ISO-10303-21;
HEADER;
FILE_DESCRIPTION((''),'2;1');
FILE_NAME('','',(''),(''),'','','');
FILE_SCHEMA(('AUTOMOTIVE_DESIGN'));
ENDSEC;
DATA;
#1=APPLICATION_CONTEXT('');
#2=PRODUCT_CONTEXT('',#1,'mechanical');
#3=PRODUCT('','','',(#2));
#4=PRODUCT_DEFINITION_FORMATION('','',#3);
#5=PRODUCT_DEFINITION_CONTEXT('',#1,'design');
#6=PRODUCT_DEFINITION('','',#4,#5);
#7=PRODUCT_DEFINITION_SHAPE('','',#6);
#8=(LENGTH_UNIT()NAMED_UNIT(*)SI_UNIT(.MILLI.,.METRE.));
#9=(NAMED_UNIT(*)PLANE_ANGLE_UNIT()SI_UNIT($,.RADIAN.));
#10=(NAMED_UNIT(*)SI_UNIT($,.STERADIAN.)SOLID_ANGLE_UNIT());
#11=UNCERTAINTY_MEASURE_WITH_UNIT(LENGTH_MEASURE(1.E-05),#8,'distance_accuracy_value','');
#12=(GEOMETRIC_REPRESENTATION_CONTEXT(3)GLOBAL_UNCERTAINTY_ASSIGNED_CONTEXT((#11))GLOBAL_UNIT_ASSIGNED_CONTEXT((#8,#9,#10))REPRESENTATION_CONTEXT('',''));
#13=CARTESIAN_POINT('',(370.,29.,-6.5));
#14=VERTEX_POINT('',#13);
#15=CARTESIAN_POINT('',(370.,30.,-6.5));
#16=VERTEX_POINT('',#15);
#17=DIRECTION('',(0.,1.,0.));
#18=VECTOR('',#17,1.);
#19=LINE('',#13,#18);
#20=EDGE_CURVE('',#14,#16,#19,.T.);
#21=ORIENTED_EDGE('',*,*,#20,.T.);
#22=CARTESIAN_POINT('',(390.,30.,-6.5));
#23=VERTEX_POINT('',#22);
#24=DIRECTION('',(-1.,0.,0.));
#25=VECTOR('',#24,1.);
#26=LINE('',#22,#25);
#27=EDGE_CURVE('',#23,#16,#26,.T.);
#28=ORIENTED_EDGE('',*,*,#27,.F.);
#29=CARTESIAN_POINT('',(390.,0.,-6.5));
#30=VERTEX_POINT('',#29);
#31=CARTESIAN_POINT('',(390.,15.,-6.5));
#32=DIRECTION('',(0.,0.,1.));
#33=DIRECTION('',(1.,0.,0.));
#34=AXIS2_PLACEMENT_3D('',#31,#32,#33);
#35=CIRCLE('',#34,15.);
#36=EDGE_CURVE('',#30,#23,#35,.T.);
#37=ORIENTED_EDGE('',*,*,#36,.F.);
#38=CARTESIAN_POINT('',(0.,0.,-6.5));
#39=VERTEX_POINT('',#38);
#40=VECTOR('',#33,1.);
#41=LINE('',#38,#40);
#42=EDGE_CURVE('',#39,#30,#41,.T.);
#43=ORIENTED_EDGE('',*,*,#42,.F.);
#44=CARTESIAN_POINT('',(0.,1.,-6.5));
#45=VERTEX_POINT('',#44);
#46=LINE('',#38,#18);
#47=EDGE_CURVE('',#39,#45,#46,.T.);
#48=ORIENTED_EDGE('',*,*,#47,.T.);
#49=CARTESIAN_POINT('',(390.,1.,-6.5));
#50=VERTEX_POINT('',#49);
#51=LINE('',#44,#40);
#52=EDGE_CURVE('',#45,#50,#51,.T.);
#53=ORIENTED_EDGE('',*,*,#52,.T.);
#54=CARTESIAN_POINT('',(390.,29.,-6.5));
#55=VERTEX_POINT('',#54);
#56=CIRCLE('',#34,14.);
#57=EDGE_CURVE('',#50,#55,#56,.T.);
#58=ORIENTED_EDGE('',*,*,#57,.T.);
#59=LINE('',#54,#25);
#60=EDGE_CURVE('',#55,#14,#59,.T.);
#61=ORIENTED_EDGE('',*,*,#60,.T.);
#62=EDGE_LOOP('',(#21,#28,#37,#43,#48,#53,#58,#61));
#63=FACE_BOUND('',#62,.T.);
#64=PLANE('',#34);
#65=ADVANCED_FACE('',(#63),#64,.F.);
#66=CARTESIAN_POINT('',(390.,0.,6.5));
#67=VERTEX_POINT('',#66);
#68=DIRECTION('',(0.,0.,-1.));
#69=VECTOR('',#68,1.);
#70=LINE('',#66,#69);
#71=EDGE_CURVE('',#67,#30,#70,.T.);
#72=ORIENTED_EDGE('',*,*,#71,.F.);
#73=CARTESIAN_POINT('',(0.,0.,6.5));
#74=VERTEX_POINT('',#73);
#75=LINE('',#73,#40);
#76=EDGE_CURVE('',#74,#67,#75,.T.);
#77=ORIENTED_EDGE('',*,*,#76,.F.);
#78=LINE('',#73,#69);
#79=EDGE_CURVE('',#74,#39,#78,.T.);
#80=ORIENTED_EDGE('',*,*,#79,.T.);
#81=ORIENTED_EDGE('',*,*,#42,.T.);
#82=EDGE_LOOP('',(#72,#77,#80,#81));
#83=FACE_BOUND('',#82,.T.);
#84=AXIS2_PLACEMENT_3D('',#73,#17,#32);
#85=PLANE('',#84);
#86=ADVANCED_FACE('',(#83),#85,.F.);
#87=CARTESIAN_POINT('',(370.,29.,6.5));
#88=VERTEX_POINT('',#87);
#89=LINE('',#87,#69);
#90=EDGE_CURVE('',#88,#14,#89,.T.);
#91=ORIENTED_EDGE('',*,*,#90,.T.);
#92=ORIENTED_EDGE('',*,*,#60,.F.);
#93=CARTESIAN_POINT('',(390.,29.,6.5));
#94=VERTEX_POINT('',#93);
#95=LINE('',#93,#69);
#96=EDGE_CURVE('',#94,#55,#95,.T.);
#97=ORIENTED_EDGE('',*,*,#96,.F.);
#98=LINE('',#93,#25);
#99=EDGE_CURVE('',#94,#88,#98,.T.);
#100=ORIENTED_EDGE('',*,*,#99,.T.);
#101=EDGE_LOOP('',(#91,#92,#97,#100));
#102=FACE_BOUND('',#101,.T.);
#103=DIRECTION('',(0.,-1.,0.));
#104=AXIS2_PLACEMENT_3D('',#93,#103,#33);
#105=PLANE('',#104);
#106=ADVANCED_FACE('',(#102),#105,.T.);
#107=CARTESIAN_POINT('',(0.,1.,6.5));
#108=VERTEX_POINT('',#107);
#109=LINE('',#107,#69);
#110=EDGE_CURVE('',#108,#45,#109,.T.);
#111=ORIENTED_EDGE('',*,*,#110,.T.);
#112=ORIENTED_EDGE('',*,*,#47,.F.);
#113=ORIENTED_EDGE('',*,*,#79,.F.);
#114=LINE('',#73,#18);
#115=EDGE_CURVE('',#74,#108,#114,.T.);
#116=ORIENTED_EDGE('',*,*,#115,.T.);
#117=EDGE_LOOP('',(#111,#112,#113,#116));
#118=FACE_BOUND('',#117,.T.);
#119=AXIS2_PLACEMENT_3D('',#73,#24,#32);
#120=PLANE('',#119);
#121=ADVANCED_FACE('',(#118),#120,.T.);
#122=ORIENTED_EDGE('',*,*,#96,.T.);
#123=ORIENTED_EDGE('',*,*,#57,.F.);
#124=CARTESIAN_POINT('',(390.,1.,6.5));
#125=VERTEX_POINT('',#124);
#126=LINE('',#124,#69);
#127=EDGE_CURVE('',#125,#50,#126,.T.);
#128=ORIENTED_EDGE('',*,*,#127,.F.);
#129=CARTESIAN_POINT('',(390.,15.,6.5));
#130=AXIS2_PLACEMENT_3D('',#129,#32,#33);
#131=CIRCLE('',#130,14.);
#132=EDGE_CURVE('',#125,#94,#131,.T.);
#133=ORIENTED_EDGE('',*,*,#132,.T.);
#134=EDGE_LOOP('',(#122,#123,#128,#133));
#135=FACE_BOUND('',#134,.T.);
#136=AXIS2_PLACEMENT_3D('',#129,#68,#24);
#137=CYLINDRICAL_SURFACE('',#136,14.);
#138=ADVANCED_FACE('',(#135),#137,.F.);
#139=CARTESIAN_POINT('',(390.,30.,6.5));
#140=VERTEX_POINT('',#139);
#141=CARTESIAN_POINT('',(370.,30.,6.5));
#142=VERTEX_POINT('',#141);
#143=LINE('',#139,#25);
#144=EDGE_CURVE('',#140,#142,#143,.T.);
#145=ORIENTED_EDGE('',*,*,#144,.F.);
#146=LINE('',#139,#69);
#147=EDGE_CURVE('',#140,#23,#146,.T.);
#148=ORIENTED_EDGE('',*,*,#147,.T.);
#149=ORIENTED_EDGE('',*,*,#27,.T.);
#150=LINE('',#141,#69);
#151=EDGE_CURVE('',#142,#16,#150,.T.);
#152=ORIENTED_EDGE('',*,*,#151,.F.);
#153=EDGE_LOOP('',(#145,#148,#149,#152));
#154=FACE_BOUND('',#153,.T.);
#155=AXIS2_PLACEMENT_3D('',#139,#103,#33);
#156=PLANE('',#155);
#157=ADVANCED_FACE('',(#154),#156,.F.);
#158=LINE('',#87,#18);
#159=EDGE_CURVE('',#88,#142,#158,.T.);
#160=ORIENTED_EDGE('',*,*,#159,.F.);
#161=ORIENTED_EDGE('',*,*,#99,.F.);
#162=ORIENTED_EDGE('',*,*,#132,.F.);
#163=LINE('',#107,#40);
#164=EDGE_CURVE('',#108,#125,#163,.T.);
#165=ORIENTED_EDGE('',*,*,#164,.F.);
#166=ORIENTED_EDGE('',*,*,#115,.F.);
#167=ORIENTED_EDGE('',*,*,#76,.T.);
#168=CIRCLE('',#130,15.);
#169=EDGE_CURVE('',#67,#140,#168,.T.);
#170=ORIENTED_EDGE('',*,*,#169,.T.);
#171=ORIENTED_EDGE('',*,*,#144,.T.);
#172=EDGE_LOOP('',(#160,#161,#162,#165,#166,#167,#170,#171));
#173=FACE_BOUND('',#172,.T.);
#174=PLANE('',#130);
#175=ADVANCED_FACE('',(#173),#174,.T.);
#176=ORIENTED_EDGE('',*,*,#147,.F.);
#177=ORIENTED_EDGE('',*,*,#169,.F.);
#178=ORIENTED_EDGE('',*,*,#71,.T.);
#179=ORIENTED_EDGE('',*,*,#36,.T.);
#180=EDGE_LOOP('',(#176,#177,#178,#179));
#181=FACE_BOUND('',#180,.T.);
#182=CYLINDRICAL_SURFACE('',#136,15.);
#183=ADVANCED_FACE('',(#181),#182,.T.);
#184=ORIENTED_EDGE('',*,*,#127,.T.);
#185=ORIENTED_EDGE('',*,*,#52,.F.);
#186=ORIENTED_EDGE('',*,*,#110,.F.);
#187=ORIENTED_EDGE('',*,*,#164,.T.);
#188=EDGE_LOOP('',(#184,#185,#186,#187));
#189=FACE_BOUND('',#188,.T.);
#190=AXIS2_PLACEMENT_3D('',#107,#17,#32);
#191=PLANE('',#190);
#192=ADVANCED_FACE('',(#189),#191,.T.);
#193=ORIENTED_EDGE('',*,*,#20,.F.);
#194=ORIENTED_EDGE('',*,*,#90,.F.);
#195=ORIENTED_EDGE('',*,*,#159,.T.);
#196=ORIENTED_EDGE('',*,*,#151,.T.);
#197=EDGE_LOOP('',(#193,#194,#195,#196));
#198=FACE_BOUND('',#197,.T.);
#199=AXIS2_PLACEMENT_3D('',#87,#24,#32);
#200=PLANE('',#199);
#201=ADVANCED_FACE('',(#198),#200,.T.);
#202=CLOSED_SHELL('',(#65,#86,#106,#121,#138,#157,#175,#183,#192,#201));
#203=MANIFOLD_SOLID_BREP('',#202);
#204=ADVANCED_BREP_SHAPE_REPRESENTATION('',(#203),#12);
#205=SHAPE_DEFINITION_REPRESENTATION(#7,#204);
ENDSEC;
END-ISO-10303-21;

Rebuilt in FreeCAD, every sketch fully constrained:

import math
import FreeCAD as App
import Part
import Sketcher

V = App.Vector
Q = App.Units.Quantity

doc = App.newDocument("Part")
body = doc.addObject("PartDesign::Body", "Body")

# Sketch on XY plane
sketch1 = body.newObject("Sketcher::SketchObject", "Sketch")
sketch1.AttachmentSupport = (doc.getObject("XY_Plane"), [""])
sketch1.MapMode = "FlatFace"
sketch1.addGeometry([
    Part.LineSegment(V(0, 0, 0), V(390, 0, 0)),  # 0
    Part.ArcOfCircle(Part.Circle(V(390, 15, 0), V(0, 0, 1), 15), math.radians(-90), math.radians(90)),  # 1
    Part.LineSegment(V(390, 30, 0), V(370, 30, 0)),  # 2
    Part.LineSegment(V(370, 30, 0), V(370, 29, 0)),  # 3
    Part.LineSegment(V(370, 29, 0), V(390, 29, 0)),  # 4
    Part.ArcOfCircle(Part.Circle(V(390, 15, 0), V(0, 0, 1), 14), math.radians(-90), math.radians(90)),  # 5
    Part.LineSegment(V(390, 1, 0), V(0, 1, 0)),  # 6
    Part.LineSegment(V(0, 1, 0), V(0, 0, 0)),  # 7
], False)
sketch1.addConstraint([
    Sketcher.Constraint("Tangent", 0, 2, 1, 1),
    Sketcher.Constraint("Tangent", 1, 2, 2, 1),
    Sketcher.Constraint("Coincident", 2, 2, 3, 1),
    Sketcher.Constraint("Coincident", 3, 2, 4, 1),
    Sketcher.Constraint("Tangent", 4, 2, 5, 2),
    Sketcher.Constraint("Tangent", 5, 1, 6, 1),
    Sketcher.Constraint("Coincident", 6, 2, 7, 1),
    Sketcher.Constraint("Coincident", 7, 2, 0, 1),
    Sketcher.Constraint("Horizontal", 0),
    Sketcher.Constraint("Horizontal", 2),
    Sketcher.Constraint("Vertical", 3),
    Sketcher.Constraint("Horizontal", 4),
    Sketcher.Constraint("Horizontal", 6),
    Sketcher.Constraint("Vertical", 7),
    Sketcher.Constraint("Coincident", 7, 2, -1, 1),
    Sketcher.Constraint("Coincident", 5, 3, 1, 3),
    Sketcher.Constraint("Radius", 1, Q("15 mm")),
    Sketcher.Constraint("Radius", 5, Q("14 mm")),
    Sketcher.Constraint("DistanceX", 0, 1, 0, 2, Q("390 mm")),
    Sketcher.Constraint("DistanceX", 2, 2, 2, 1, Q("20 mm")),
])
pad1 = body.newObject("PartDesign::Pad", "Pad")
pad1.Profile = sketch1
pad1.Length = 13
pad1.Midplane = True

doc.recompute()
